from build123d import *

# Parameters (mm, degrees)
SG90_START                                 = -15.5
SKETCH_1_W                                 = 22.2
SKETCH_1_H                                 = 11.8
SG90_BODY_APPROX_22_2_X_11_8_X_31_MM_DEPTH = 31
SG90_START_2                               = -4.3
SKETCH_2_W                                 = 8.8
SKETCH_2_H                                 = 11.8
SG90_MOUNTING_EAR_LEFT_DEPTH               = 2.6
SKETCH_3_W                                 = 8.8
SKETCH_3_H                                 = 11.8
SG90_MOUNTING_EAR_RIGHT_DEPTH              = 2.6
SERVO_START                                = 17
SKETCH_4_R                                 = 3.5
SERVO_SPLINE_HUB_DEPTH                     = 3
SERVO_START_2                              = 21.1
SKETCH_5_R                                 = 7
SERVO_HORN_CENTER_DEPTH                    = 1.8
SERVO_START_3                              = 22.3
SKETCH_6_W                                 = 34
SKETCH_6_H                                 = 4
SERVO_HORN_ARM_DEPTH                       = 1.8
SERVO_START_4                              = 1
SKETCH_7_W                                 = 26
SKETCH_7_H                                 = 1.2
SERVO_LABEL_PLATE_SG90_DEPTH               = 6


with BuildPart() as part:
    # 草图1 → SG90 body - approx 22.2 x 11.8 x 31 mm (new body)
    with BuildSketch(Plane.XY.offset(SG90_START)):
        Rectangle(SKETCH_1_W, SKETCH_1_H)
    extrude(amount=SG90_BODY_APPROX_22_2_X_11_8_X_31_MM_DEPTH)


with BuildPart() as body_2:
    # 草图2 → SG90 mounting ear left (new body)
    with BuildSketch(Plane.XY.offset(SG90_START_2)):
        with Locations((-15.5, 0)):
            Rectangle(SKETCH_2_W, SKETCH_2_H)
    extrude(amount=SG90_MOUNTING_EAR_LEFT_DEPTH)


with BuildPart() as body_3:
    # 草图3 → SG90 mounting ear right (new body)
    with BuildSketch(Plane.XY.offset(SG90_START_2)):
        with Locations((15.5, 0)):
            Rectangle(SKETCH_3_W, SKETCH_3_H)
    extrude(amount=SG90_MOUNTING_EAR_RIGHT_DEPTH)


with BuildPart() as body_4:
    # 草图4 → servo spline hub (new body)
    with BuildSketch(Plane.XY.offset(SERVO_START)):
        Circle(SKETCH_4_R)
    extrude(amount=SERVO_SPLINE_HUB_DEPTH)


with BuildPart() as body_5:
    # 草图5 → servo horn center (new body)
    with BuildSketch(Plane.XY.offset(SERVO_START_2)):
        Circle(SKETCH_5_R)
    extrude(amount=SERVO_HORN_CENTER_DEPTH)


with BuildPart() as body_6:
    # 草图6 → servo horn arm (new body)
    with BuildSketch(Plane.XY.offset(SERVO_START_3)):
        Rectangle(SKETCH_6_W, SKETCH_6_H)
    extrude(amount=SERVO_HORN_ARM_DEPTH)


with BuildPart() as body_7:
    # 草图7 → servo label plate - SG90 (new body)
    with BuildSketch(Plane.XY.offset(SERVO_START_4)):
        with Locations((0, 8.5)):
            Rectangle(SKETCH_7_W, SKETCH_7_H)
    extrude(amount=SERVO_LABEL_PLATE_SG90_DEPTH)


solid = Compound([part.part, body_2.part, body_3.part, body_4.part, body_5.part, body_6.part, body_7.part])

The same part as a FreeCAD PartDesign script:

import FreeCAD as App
import Part
import Sketcher

V = App.Vector
Q = App.Units.Quantity


def add_polygon(sketch, points):
    """Adds a closed chain of lines whose ends are joined by coincident constraints."""
    first, n = sketch.GeometryCount, len(points)
    for a, b in zip(points, points[1:] + points[:1]):
        sketch.addGeometry(Part.LineSegment(App.Vector(*a, 0), App.Vector(*b, 0)), False)
    for i in range(n):
        sketch.addConstraint(Sketcher.Constraint("Coincident", first + i, 2, first + (i + 1) % n, 1))

doc = App.newDocument("Part")
body = doc.addObject("PartDesign::Body", "Body")

# Sketch on XY plane
sketch1 = body.newObject("Sketcher::SketchObject", "Sketch")
sketch1.AttachmentSupport = (doc.getObject("XY_Plane"), [""])
sketch1.MapMode = "FlatFace"
sketch1.AttachmentOffset = App.Placement(V(0, 0, -15.5), App.Rotation())
add_polygon(sketch1, [(-11.1, 5.9), (-11.1, -5.9), (11.1, -5.9), (11.1, 5.9)])  # lines 0-3
sketch1.addConstraint([
    Sketcher.Constraint("Vertical", 0),
    Sketcher.Constraint("Horizontal", 1),
    Sketcher.Constraint("Vertical", 2),
    Sketcher.Constraint("Horizontal", 3),
    Sketcher.Constraint("Symmetric", 0, 2, 2, 2, -1, 1),
    Sketcher.Constraint("DistanceX", 1, 1, 1, 2, Q("22.2 mm")),
    Sketcher.Constraint("DistanceY", 0, 2, 0, 1, Q("11.8 mm")),
])
pad1 = body.newObject("PartDesign::Pad", "Pad")
pad1.Profile = sketch1
pad1.Length = 31
body2 = doc.addObject("PartDesign::Body", "Body001")

# Sketch on XY plane
sketch2 = body2.newObject("Sketcher::SketchObject", "Sketch001")
sketch2.AttachmentSupport = (doc.getObject("XY_Plane001"), [""])
sketch2.MapMode = "FlatFace"
sketch2.AttachmentOffset = App.Placement(V(0, 0, -4.3), App.Rotation())
add_polygon(sketch2, [(-19.9, 5.9), (-19.9, -5.9), (-11.1, -5.9), (-11.1, 5.9)])  # lines 0-3
sketch2.addConstraint([
    Sketcher.Constraint("Vertical", 0),
    Sketcher.Constraint("Horizontal", 1),
    Sketcher.Constraint("Vertical", 2),
    Sketcher.Constraint("Horizontal", 3),
    Sketcher.Constraint("DistanceX", 1, 1, 1, 2, Q("8.8 mm")),
    Sketcher.Constraint("DistanceY", 0, 2, 0, 1, Q("11.8 mm")),
    Sketcher.Constraint("DistanceX", 0, 2, -1, 1, Q("19.9 mm")),
    Sketcher.Constraint("DistanceY", 0, 2, -1, 1, Q("5.9 mm")),
])
pad2 = body2.newObject("PartDesign::Pad", "Pad001")
pad2.Profile = sketch2
pad2.Length = 2.6
body3 = doc.addObject("PartDesign::Body", "Body002")

# Sketch on XY plane
sketch3 = body3.newObject("Sketcher::SketchObject", "Sketch002")
sketch3.AttachmentSupport = (doc.getObject("XY_Plane002"), [""])
sketch3.MapMode = "FlatFace"
sketch3.AttachmentOffset = App.Placement(V(0, 0, -4.3), App.Rotation())
add_polygon(sketch3, [(11.1, 5.9), (11.1, -5.9), (19.9, -5.9), (19.9, 5.9)])  # lines 0-3
sketch3.addConstraint([
    Sketcher.Constraint("Vertical", 0),
    Sketcher.Constraint("Horizontal", 1),
    Sketcher.Constraint("Vertical", 2),
    Sketcher.Constraint("Horizontal", 3),
    Sketcher.Constraint("DistanceX", 1, 1, 1, 2, Q("8.8 mm")),
    Sketcher.Constraint("DistanceY", 0, 2, 0, 1, Q("11.8 mm")),
    Sketcher.Constraint("DistanceX", -1, 1, 0, 2, Q("11.1 mm")),
    Sketcher.Constraint("DistanceY", 0, 2, -1, 1, Q("5.9 mm")),
])
pad3 = body3.newObject("PartDesign::Pad", "Pad002")
pad3.Profile = sketch3
pad3.Length = 2.6
body4 = doc.addObject("PartDesign::Body", "Body003")

# Sketch on XY plane
sketch4 = body4.newObject("Sketcher::SketchObject", "Sketch003")
sketch4.AttachmentSupport = (doc.getObject("XY_Plane003"), [""])
sketch4.MapMode = "FlatFace"
sketch4.AttachmentOffset = App.Placement(V(0, 0, 17), App.Rotation())
sketch4.addGeometry(Part.Circle(V(0, 0, 0), V(0, 0, 1), 3.5), False)
sketch4.addConstraint([
    Sketcher.Constraint("Coincident", 0, 3, -1, 1),
    Sketcher.Constraint("Diameter", 0, Q("7 mm")),
])
pad4 = body4.newObject("PartDesign::Pad", "Pad003")
pad4.Profile = sketch4
pad4.Length = 3
body5 = doc.addObject("PartDesign::Body", "Body004")

# Sketch on XY plane
sketch5 = body5.newObject("Sketcher::SketchObject", "Sketch004")
sketch5.AttachmentSupport = (doc.getObject("XY_Plane004"), [""])
sketch5.MapMode = "FlatFace"
sketch5.AttachmentOffset = App.Placement(V(0, 0, 21.1), App.Rotation())
sketch5.addGeometry(Part.Circle(V(0, 0, 0), V(0, 0, 1), 7), False)
sketch5.addConstraint([
    Sketcher.Constraint("Coincident", 0, 3, -1, 1),
    Sketcher.Constraint("Diameter", 0, Q("14 mm")),
])
pad5 = body5.newObject("PartDesign::Pad", "Pad004")
pad5.Profile = sketch5
pad5.Length = 1.8
body6 = doc.addObject("PartDesign::Body", "Body005")

# Sketch on XY plane
sketch6 = body6.newObject("Sketcher::SketchObject", "Sketch005")
sketch6.AttachmentSupport = (doc.getObject("XY_Plane005"), [""])
sketch6.MapMode = "FlatFace"
sketch6.AttachmentOffset = App.Placement(V(0, 0, 22.3), App.Rotation())
add_polygon(sketch6, [(-17, 2), (-17, -2), (17, -2), (17, 2)])  # lines 0-3
sketch6.addConstraint([
    Sketcher.Constraint("Vertical", 0),
    Sketcher.Constraint("Horizontal", 1),
    Sketcher.Constraint("Vertical", 2),
    Sketcher.Constraint("Horizontal", 3),
    Sketcher.Constraint("Symmetric", 0, 2, 2, 2, -1, 1),
    Sketcher.Constraint("DistanceX", 1, 1, 1, 2, Q("34 mm")),
    Sketcher.Constraint("DistanceY", 0, 2, 0, 1, Q("4 mm")),
])
pad6 = body6.newObject("PartDesign::Pad", "Pad005")
pad6.Profile = sketch6
pad6.Length = 1.8
body7 = doc.addObject("PartDesign::Body", "Body006")

# Sketch on XY plane
sketch7 = body7.newObject("Sketcher::SketchObject", "Sketch006")
sketch7.AttachmentSupport = (doc.getObject("XY_Plane006"), [""])
sketch7.MapMode = "FlatFace"
sketch7.AttachmentOffset = App.Placement(V(0, 0, 1), App.Rotation())
add_polygon(sketch7, [(-13, 9.1), (-13, 7.9), (13, 7.9), (13, 9.1)])  # lines 0-3
sketch7.addConstraint([
    Sketcher.Constraint("Vertical", 0),
    Sketcher.Constraint("Horizontal", 1),
    Sketcher.Constraint("Vertical", 2),
    Sketcher.Constraint("Horizontal", 3),
    Sketcher.Constraint("DistanceX", 1, 1, 1, 2, Q("26 mm")),
    Sketcher.Constraint("DistanceY", 0, 2, 0, 1, Q("1.2 mm")),
    Sketcher.Constraint("DistanceX", 0, 2, -1, 1, Q("13 mm")),
    Sketcher.Constraint("DistanceY", -1, 1, 0, 2, Q("7.9 mm")),
])
pad7 = body7.newObject("PartDesign::Pad", "Pad006")
pad7.Profile = sketch7
pad7.Length = 6

doc.recompute()
